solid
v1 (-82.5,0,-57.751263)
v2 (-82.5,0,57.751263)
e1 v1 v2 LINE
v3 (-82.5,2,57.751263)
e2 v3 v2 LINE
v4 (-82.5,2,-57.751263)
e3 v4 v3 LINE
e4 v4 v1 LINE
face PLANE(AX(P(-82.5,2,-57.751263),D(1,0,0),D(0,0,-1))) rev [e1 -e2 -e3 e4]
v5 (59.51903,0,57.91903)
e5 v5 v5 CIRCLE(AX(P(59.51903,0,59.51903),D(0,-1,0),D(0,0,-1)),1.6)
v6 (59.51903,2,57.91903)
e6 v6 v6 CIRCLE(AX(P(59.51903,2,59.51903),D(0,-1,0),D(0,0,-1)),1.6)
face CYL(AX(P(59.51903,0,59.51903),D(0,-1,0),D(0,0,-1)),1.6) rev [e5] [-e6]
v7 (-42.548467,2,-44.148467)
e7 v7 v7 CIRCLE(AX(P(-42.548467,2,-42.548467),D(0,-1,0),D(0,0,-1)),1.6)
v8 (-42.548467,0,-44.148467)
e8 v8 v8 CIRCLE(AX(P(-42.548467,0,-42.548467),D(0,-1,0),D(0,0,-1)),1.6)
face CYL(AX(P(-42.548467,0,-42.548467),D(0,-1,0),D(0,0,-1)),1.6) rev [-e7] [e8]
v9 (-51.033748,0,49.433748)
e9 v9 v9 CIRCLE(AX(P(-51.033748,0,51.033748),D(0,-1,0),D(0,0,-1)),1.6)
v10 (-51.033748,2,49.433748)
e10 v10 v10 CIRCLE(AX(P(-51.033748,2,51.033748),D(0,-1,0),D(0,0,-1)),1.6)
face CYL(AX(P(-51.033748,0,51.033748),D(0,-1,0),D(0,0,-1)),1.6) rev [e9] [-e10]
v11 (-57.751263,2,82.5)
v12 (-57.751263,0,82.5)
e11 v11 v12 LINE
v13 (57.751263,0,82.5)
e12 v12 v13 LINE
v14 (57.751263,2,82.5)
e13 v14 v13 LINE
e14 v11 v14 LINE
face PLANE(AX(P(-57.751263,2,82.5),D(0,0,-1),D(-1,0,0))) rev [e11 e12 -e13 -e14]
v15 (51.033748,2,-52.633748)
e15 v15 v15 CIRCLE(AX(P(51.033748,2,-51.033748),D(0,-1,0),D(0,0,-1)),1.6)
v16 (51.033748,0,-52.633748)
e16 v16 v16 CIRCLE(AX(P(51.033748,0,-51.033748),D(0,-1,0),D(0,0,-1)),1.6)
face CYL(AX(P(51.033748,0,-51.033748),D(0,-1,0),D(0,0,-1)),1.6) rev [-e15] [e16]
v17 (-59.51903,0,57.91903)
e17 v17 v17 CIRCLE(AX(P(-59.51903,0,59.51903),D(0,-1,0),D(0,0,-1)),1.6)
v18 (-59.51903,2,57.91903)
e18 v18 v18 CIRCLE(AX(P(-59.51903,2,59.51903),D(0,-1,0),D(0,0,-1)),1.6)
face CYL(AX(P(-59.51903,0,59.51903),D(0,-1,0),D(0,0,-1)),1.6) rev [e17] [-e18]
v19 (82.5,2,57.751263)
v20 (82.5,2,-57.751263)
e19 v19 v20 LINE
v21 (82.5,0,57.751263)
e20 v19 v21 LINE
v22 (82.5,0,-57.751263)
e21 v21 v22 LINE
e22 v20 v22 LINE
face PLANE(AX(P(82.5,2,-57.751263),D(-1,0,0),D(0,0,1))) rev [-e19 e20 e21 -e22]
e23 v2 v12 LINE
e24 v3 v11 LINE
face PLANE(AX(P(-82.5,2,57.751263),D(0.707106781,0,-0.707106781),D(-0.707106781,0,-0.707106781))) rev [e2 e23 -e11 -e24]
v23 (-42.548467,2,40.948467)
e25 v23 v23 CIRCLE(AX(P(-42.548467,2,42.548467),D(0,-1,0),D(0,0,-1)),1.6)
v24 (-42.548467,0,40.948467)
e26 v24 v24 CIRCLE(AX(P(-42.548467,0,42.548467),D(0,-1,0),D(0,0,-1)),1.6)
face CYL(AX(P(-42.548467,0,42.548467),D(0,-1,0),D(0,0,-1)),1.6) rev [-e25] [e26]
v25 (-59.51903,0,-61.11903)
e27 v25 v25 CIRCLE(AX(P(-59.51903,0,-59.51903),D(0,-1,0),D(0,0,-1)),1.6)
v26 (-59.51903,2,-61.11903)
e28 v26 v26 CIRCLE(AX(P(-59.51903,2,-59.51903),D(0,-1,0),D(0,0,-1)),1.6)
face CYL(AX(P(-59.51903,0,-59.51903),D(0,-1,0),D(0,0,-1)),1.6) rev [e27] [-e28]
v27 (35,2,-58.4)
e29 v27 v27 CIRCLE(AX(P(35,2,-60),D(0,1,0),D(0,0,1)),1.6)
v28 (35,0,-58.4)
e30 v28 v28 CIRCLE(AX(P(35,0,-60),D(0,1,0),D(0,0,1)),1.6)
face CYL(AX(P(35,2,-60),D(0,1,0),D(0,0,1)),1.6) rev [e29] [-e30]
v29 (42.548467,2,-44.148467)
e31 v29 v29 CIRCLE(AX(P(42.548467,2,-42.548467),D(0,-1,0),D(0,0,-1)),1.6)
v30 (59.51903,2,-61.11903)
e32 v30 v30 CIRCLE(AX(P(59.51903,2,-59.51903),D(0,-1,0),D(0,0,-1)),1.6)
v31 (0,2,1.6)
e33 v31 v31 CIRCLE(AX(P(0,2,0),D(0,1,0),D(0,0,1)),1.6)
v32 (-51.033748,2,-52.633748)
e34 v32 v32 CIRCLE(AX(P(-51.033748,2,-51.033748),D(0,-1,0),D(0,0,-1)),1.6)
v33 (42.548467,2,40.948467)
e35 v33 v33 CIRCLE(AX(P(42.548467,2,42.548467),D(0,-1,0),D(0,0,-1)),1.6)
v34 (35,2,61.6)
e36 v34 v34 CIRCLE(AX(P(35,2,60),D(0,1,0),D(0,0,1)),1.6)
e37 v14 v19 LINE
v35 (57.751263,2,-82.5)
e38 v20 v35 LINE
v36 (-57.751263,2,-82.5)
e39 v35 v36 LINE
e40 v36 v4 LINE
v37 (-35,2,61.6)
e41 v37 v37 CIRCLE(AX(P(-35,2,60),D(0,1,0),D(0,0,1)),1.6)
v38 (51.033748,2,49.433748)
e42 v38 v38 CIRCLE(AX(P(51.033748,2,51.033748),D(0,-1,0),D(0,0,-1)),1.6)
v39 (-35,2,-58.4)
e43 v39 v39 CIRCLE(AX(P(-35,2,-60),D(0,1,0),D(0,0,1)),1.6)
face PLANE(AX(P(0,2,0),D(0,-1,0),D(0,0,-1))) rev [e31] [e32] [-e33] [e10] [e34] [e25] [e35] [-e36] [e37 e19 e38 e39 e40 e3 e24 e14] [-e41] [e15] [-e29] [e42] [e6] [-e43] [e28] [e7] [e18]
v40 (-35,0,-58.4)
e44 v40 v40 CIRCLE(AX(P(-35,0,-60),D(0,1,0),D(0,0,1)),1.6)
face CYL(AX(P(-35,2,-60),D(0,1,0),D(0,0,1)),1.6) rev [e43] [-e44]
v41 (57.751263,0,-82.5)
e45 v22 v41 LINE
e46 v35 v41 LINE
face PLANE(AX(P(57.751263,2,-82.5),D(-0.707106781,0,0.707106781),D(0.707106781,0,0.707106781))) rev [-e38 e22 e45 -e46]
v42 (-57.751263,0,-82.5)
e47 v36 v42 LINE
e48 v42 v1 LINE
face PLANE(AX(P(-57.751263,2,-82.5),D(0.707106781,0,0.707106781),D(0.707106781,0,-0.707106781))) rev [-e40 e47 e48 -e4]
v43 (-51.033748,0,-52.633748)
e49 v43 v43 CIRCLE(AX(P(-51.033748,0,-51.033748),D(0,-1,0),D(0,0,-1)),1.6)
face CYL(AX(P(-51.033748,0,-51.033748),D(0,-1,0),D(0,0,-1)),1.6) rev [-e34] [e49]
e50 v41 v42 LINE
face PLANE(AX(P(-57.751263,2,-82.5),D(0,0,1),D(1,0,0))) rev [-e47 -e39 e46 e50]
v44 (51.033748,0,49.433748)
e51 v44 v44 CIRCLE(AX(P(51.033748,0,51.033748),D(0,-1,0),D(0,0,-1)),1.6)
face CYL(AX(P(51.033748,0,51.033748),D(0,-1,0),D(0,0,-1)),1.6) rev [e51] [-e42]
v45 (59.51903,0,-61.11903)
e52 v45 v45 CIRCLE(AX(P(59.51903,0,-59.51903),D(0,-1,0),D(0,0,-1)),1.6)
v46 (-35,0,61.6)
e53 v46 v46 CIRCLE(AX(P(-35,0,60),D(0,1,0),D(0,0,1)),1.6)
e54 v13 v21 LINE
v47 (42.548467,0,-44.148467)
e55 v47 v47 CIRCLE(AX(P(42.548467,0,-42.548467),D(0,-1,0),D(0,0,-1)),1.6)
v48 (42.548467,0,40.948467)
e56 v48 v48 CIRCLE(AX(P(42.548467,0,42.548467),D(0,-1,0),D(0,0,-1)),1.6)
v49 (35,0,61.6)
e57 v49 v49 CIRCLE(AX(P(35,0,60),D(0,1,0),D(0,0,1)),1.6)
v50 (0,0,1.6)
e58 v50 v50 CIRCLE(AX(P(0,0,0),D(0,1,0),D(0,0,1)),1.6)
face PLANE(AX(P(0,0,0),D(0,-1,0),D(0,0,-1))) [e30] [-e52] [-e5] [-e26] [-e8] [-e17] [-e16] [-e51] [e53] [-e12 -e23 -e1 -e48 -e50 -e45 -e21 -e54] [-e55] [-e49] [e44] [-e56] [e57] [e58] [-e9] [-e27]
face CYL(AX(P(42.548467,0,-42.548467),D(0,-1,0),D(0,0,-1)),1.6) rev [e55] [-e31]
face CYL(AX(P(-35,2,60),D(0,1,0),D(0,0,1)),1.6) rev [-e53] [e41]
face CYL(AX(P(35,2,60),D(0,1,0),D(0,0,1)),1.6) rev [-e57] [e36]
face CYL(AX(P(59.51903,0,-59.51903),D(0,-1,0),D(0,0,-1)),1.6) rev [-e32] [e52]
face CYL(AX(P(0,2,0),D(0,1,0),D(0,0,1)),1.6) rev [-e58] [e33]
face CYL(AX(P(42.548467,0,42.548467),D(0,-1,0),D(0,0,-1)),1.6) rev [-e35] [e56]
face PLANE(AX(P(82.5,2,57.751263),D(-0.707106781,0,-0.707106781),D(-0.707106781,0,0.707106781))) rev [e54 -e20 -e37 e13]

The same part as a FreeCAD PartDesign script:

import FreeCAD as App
import Part
import Sketcher
from FreeCAD import Vector
Q = App.Units.Quantity

doc = App.newDocument("Part")
params = doc.addObject("Spreadsheet::Sheet", "Params")
for row, (alias, value) in enumerate([
    ("sketch1_length", "35 mm"),
    ("pad1_length", "2 mm"),
    ("sketch2_diameter", "3.2 mm"),
    ("hole_diameter", "3.2 mm"),
    ("sketch3_diameter", "3.2 mm"),
    ("hole2_diameter", "3.2 mm"),
], start=1):
    params.set(f"A{row}", alias)
    params.set(f"B{row}", "=" + value)
    params.setAlias(f"B{row}", alias)

body = doc.addObject("PartDesign::Body", "Body")

sketch1 = doc.addObject("Sketcher::SketchObject", "Sketch")
body.addObject(sketch1)
sketch1.AttachmentSupport = (doc.XZ_Plane, [""])
sketch1.MapMode = "FlatFace"
sketch1.addGeometry([
    Part.LineSegment(Vector(-57.751263, -82.5, 0), Vector(-82.5, -57.751263, 0)),
    Part.LineSegment(Vector(-82.5, -57.751263, 0), Vector(-82.5, 57.751263, 0)),
    Part.LineSegment(Vector(-82.5, 57.751263, 0), Vector(-57.751263, 82.5, 0)),
    Part.LineSegment(Vector(-57.751263, 82.5, 0), Vector(57.751263, 82.5, 0)),
    Part.LineSegment(Vector(57.751263, 82.5, 0), Vector(82.5, 57.751263, 0)),
    Part.LineSegment(Vector(82.5, 57.751263, 0), Vector(82.5, -57.751263, 0)),
    Part.LineSegment(Vector(82.5, -57.751263, 0), Vector(57.751263, -82.5, 0)),
    Part.LineSegment(Vector(57.751263, -82.5, 0), Vector(-57.751263, -82.5, 0)),
], False)
sketch1.addConstraint([
    Sketcher.Constraint("Coincident", 0, 2, 1, 1),
    Sketcher.Constraint("Coincident", 1, 2, 2, 1),
    Sketcher.Constraint("Coincident", 2, 2, 3, 1),
    Sketcher.Constraint("Coincident", 3, 2, 4, 1),
    Sketcher.Constraint("Coincident", 4, 2, 5, 1),
    Sketcher.Constraint("Coincident", 5, 2, 6, 1),
    Sketcher.Constraint("Coincident", 6, 2, 7, 1),
    Sketcher.Constraint("Coincident", 7, 2, 0, 1),
    Sketcher.Constraint("Vertical", 1),
    Sketcher.Constraint("Horizontal", 3),
    Sketcher.Constraint("Vertical", 5),
    Sketcher.Constraint("Horizontal", 7),
    Sketcher.Constraint("Symmetric", 0, 2, 4, 2, -1, 1),
    Sketcher.Constraint("Symmetric", 2, 2, 6, 2, -1, 1),
    Sketcher.Constraint("Perpendicular", 0, 2),
    Sketcher.Constraint("Perpendicular", 2, 4),
    Sketcher.Constraint("Perpendicular", 4, 6),
    Sketcher.Constraint("Horizontal", 1, 2, 4, 2),
    Sketcher.Constraint("Vertical", 3, 2, 6, 2),
    Sketcher.Constraint("Equal", 7, 1),
    Sketcher.Constraint("Distance", 0, Q("35 mm")),
    Sketcher.Constraint("DistanceX", 1, 2, 4, 2, Q("165 mm")),
])
sketch1.setExpression("Constraints[20]", "Params.sketch1_length")
pad1 = doc.addObject("PartDesign::Pad", "Pad")
body.addObject(pad1)
pad1.Profile = sketch1
pad1.setExpression("Length", "Params.pad1_length")
pad1.Reversed = True

sketch2 = doc.addObject("Sketcher::SketchObject", "Sketch001")
body.addObject(sketch2)
sketch2.AttachmentSupport = (doc.XZ_Plane, [""])
sketch2.MapMode = "FlatFace"
sketch2.addGeometry([
    Part.Circle(Vector(-42.548467, 42.548467, 0), Vector(0, 0, 1), 1.6),
    Part.Circle(Vector(-59.51903, -59.51903, 0), Vector(0, 0, 1), 1.6),
    Part.Circle(Vector(-51.033748, -51.033748, 0), Vector(0, 0, 1), 1.6),
    Part.Circle(Vector(-42.548467, -42.548467, 0), Vector(0, 0, 1), 1.6),
    Part.Circle(Vector(59.51903, 59.51903, 0), Vector(0, 0, 1), 1.6),
    Part.Circle(Vector(51.033748, 51.033748, 0), Vector(0, 0, 1), 1.6),
    Part.Circle(Vector(42.548467, 42.548467, 0), Vector(0, 0, 1), 1.6),
    Part.Circle(Vector(59.51903, -59.51903, 0), Vector(0, 0, 1), 1.6),
    Part.Circle(Vector(51.033748, -51.033748, 0), Vector(0, 0, 1), 1.6),
    Part.Circle(Vector(42.548467, -42.548467, 0), Vector(0, 0, 1), 1.6),
    Part.Circle(Vector(-59.51903, 59.51903, 0), Vector(0, 0, 1), 1.6),
    Part.Circle(Vector(-51.033748, 51.033748, 0), Vector(0, 0, 1), 1.6),
], False)
sketch2.addConstraint([
    Sketcher.Constraint("Equal", 0, 1),
    Sketcher.Constraint("Equal", 1, 2),
    Sketcher.Constraint("Equal", 2, 3),
    Sketcher.Constraint("Equal", 3, 4),
    Sketcher.Constraint("Equal", 4, 5),
    Sketcher.Constraint("Equal", 5, 6),
    Sketcher.Constraint("Equal", 6, 7),
    Sketcher.Constraint("Equal", 7, 8),
    Sketcher.Constraint("Equal", 8, 9),
    Sketcher.Constraint("Equal", 9, 10),
    Sketcher.Constraint("Equal", 10, 11),
    Sketcher.Constraint("Symmetric", 1, 3, 4, 3, -1, 1),
    Sketcher.Constraint("Symmetric", 2, 3, 5, 3, -1, 1),
    Sketcher.Constraint("Symmetric", 3, 3, 6, 3, -1, 1),
    Sketcher.Constraint("Symmetric", 0, 3, 9, 3, -1, 1),
    Sketcher.Constraint("Symmetric", 7, 3, 10, 3, -1, 1),
    Sketcher.Constraint("Symmetric", 8, 3, 11, 3, -1, 1),
    Sketcher.Constraint("Symmetric", 0, 3, 6, 3, -2),
    Sketcher.Constraint("Symmetric", 1, 3, 7, 3, -2),
    Sketcher.Constraint("Symmetric", 2, 3, 8, 3, -2),
    Sketcher.Constraint("Diameter", 0, Q("3.2 mm")),
    Sketcher.Constraint("DistanceX", 1, 3, -1, 1, Q("59.51903 mm")),
    Sketcher.Constraint("DistanceY", 1, 3, -1, 1, Q("59.51903 mm")),
    Sketcher.Constraint("DistanceX", 2, 3, -1, 1, Q("51.033748 mm")),
    Sketcher.Constraint("DistanceY", 2, 3, -1, 1, Q("51.033748 mm")),
    Sketcher.Constraint("DistanceX", 2, 3, 0, 3, Q("8.485281 mm")),
    Sketcher.Constraint("DistanceY", 2, 3, 3, 3, Q("8.485281 mm")),
])
sketch2.setExpression("Constraints[20]", "Params.sketch2_diameter")
doc.recompute()
hole = doc.addObject("PartDesign::Hole", "Hole")
body.addObject(hole)
hole.Profile = sketch2
hole.ThreadType = "None"
hole.setExpression("Diameter", "Params.hole_diameter")
hole.DepthType = "ThroughAll"

sketch3 = doc.addObject("Sketcher::SketchObject", "Sketch002")
body.addObject(sketch3)
sketch3.AttachmentSupport = (doc.XZ_Plane, [""])
sketch3.MapMode = "FlatFace"
sketch3.AttachmentOffset = App.Placement(Vector(0, 0, -2), App.Rotation())
sketch3.addGeometry([
    Part.Circle(Vector(0, 0, 0), Vector(0, 0, 1), 1.6),
    Part.Circle(Vector(-35, -60, 0), Vector(0, 0, 1), 1.6),
    Part.Circle(Vector(35, 60, 0), Vector(0, 0, 1), 1.6),
    Part.Circle(Vector(35, -60, 0), Vector(0, 0, 1), 1.6),
    Part.Circle(Vector(-35, 60, 0), Vector(0, 0, 1), 1.6),
], False)
sketch3.addConstraint([
    Sketcher.Constraint("Coincident", 0, 3, -1, 1),
    Sketcher.Constraint("Equal", 0, 1),
    Sketcher.Constraint("Equal", 1, 2),
    Sketcher.Constraint("Equal", 2, 3),
    Sketcher.Constraint("Equal", 3, 4),
    Sketcher.Constraint("Symmetric", 1, 3, 2, 3, -1, 1),
    Sketcher.Constraint("Symmetric", 3, 3, 4, 3, -1, 1),
    Sketcher.Constraint("Symmetric", 1, 3, 3, 3, -2),
    Sketcher.Constraint("Diameter", 0, Q("3.2 mm")),
    Sketcher.Constraint("DistanceX", 1, 3, -1, 1, Q("35 mm")),
    Sketcher.Constraint("DistanceY", 1, 3, -1, 1, Q("60 mm")),
])
sketch3.setExpression("Constraints[8]", "Params.sketch3_diameter")
doc.recompute()
hole2 = doc.addObject("PartDesign::Hole", "Hole001")
body.addObject(hole2)
hole2.Profile = sketch3
hole2.ThreadType = "None"
hole2.setExpression("Diameter", "Params.hole2_diameter")
hole2.DepthType = "ThroughAll"
hole2.Reversed = True

doc.recompute()
